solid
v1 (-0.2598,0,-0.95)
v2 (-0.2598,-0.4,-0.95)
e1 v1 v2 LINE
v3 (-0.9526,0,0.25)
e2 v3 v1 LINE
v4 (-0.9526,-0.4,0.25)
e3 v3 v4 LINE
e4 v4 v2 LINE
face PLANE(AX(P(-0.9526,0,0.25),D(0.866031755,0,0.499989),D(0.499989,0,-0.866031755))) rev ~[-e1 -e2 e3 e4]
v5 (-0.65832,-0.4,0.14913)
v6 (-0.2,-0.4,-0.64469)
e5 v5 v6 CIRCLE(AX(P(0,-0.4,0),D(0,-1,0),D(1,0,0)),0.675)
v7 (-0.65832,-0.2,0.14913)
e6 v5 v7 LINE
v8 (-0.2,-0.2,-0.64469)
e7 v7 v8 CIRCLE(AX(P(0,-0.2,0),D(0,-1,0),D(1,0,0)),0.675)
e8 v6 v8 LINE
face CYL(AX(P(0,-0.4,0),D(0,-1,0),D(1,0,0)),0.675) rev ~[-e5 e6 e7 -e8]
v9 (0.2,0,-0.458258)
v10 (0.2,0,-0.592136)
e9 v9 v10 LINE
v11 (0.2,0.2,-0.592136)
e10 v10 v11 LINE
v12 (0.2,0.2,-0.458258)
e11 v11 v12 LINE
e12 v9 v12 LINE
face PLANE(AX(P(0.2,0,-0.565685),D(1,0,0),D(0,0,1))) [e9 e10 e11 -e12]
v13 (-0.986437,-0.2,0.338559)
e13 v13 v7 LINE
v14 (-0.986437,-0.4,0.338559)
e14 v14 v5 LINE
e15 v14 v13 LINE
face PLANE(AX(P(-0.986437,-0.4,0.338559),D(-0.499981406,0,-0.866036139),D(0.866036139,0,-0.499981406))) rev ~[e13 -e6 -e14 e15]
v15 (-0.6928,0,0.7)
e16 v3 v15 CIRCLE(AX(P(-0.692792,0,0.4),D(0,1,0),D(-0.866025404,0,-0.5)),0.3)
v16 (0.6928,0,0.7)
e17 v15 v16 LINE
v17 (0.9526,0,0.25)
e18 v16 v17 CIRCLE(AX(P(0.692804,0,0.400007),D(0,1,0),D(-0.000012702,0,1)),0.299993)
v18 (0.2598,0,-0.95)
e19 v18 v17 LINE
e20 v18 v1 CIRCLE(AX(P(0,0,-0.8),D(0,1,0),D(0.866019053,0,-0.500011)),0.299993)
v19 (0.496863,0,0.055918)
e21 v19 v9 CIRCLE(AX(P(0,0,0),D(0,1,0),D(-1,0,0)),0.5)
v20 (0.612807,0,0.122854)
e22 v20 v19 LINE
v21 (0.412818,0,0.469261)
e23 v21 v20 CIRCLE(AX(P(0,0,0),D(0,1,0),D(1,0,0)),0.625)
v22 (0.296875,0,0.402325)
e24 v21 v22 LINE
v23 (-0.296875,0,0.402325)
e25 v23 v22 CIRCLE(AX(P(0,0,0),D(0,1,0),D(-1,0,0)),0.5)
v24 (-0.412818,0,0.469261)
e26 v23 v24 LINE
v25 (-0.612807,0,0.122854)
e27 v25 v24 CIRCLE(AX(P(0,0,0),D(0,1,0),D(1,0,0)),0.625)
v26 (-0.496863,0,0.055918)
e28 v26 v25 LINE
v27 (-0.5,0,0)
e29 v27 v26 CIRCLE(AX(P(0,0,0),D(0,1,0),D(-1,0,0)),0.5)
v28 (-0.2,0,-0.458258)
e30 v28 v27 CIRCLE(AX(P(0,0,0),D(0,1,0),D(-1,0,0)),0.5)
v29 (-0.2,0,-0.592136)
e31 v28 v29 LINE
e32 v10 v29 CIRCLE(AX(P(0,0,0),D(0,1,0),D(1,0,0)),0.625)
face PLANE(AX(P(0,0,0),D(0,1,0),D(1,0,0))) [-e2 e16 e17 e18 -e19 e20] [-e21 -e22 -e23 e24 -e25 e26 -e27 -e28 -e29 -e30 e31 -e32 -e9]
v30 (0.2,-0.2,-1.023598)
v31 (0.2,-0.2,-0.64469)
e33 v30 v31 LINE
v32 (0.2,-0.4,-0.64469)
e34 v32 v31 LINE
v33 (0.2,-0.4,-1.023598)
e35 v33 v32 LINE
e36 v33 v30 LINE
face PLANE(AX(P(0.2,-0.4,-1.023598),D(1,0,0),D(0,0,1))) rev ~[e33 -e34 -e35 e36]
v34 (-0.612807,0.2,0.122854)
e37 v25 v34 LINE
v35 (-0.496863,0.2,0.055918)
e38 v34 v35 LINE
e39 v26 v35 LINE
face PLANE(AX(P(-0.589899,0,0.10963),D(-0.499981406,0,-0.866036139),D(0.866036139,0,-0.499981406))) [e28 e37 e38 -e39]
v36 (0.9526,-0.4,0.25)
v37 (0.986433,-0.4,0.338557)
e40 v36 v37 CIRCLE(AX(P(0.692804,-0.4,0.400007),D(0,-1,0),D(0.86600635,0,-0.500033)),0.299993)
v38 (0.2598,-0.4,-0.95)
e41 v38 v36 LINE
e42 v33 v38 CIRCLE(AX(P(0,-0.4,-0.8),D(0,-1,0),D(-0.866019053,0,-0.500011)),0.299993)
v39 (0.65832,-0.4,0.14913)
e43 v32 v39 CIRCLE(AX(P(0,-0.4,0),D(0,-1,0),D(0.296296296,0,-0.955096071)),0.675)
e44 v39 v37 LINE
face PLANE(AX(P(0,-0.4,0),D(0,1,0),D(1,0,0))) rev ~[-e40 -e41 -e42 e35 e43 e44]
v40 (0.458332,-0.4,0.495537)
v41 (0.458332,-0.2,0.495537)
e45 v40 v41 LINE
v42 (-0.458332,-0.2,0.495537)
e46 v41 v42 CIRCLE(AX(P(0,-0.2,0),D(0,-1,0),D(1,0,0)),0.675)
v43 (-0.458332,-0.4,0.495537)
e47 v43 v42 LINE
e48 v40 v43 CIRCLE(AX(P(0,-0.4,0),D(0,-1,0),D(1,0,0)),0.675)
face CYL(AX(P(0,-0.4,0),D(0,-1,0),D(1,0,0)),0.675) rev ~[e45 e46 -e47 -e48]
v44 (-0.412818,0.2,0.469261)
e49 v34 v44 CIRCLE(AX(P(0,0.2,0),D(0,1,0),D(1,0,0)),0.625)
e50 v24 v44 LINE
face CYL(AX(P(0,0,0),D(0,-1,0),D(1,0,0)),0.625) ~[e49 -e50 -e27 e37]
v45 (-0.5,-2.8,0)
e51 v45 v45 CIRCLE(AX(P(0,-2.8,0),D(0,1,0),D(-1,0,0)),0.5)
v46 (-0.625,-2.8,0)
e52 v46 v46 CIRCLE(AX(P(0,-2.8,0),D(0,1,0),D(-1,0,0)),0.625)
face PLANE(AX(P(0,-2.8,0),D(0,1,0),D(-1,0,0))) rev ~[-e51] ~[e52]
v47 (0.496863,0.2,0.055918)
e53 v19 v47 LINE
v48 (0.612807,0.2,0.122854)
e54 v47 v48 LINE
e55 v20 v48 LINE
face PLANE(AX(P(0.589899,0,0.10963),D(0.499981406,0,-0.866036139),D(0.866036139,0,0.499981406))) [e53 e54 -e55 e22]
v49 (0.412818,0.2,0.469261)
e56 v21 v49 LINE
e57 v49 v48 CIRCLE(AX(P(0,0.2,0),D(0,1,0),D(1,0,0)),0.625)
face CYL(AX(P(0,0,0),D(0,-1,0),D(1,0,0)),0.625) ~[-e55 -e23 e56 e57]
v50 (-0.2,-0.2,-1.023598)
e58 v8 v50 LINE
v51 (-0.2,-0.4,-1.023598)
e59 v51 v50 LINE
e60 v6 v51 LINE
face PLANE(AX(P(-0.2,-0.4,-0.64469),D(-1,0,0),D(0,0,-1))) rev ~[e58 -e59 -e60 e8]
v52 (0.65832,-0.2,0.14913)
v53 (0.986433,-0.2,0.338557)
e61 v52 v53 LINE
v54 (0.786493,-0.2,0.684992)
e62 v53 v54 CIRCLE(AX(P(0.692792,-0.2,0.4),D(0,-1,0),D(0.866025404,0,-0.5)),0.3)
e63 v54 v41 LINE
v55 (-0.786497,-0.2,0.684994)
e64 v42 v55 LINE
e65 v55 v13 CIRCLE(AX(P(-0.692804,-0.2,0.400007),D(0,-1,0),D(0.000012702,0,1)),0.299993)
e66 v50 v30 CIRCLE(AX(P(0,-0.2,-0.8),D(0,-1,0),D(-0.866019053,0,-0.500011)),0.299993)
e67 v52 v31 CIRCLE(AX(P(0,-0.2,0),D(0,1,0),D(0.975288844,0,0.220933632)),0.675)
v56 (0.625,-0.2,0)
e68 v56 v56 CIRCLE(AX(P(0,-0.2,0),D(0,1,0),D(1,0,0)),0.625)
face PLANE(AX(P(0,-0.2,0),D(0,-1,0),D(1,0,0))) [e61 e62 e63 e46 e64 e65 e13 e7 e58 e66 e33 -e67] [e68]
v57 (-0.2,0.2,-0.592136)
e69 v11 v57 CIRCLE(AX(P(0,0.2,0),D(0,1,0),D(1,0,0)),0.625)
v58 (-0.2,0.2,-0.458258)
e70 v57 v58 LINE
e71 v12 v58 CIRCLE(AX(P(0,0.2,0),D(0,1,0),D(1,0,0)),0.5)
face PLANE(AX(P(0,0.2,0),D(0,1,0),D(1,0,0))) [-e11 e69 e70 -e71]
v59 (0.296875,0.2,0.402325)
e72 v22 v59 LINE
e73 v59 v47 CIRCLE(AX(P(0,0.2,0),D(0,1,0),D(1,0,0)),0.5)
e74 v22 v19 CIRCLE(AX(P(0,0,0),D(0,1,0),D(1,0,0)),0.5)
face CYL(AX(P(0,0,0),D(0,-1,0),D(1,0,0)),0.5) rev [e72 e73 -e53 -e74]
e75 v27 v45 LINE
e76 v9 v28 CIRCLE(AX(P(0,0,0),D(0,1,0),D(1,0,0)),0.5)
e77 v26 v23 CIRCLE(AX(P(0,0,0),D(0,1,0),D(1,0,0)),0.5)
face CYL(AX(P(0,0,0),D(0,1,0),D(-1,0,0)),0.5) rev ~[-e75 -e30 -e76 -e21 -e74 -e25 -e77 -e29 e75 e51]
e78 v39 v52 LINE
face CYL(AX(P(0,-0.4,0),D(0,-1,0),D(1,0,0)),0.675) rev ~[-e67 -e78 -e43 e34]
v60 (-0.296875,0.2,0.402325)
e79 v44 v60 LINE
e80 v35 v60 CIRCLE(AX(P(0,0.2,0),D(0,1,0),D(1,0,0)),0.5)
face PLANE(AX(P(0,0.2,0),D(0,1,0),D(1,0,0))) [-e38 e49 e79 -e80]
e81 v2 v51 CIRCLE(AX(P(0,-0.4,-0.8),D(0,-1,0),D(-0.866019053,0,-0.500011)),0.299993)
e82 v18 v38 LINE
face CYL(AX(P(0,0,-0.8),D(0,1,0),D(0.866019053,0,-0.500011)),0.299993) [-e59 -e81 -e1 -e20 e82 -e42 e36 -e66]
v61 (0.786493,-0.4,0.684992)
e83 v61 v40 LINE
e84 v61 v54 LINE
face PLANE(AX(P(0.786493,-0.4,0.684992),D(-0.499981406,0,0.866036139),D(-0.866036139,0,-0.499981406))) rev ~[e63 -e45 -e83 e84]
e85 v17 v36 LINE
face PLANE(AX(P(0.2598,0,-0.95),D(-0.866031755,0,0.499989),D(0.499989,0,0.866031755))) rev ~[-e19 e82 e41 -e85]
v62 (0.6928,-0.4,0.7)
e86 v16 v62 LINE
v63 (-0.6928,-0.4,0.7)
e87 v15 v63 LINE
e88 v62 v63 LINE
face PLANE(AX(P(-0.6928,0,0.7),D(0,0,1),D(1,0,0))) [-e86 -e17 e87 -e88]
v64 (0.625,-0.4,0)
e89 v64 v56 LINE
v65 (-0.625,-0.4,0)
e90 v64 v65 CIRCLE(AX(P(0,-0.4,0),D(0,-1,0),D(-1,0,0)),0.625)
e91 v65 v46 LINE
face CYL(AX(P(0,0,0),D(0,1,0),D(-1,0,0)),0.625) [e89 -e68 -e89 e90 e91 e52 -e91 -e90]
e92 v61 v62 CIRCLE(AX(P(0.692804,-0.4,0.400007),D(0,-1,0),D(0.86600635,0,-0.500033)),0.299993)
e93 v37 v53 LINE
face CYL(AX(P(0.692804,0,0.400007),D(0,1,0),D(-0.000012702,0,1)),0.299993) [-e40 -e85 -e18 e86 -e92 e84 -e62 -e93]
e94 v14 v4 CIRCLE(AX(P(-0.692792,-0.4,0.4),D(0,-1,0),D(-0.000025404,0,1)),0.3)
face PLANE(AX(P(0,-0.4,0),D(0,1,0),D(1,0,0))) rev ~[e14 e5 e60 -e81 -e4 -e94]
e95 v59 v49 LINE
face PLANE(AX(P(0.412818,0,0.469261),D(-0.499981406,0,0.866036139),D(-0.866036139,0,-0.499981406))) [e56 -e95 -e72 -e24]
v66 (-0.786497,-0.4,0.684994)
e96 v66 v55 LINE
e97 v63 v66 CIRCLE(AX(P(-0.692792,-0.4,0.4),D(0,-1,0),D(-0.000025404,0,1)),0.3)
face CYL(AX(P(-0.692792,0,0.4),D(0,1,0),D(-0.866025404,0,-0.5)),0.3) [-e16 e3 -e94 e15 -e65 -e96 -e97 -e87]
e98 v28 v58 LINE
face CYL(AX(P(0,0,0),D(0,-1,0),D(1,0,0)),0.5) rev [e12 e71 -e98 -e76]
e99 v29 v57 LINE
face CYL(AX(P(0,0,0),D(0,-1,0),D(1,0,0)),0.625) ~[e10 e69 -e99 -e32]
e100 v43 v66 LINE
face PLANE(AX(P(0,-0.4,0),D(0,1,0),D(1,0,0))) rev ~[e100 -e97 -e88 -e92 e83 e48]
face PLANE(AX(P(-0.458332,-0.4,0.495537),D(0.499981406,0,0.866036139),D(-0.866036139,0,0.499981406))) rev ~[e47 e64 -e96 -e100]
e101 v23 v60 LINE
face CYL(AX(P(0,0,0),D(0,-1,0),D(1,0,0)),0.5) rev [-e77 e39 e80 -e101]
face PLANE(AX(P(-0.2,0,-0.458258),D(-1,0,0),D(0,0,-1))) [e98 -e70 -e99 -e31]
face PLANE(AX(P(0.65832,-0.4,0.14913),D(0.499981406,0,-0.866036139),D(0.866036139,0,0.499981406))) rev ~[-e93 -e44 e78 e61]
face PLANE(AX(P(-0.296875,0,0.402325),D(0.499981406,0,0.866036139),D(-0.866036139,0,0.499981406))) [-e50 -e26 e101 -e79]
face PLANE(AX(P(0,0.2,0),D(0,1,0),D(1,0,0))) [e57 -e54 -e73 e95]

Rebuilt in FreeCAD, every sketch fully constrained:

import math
import FreeCAD as App
import Part
import Sketcher

V = App.Vector
Q = App.Units.Quantity

doc = App.newDocument("Part")
params = doc.addObject("Spreadsheet::Sheet", "Params")
for row, (alias, value) in enumerate([
    ("sketch1_diameter", "1 mm"),
    ("sketch1_diameter2", "1.25 mm"),
    ("pad1_length", "2.8 mm"),
    ("sketch2_radius", "0.3 mm"),
    ("sketch2_diameter", "1.25 mm"),
    ("pad2_length", "0.4 mm"),
    ("sketch3_radius", "0.3 mm"),
    ("sketch3_diameter", "1.25 mm"),
    ("pocket1_length", "0.2 mm"),
    ("sketch4_radius", "0.5 mm"),
    ("pad3_length", "0.2 mm"),
], start=1):
    params.set(f"A{row}", alias)
    params.set(f"B{row}", "=" + value)
    params.setAlias(f"B{row}", alias)

body = doc.addObject("PartDesign::Body", "Body")

sketch1 = body.newObject("Sketcher::SketchObject", "Sketch")
sketch1.AttachmentSupport = (doc.getObject("XZ_Plane"), [""])
sketch1.MapMode = "FlatFace"
sketch1.addGeometry(Part.Circle(V(0, 0, 0), V(0, 0, 1), 0.6), False)
sketch1.addGeometry(Part.Circle(V(0, 0, 0), V(0, 0, 1), 0.5), False)
sketch1.addConstraint(Sketcher.Constraint("Coincident", 0, 3, -1, 1))
sketch1.addConstraint(Sketcher.Constraint("Coincident", 1, 3, -1, 1))
sketch1.addConstraint(Sketcher.Constraint("Diameter", 1, Q("1 mm")))
sketch1.addConstraint(Sketcher.Constraint("Diameter", 0, Q("1.25 mm")))
sketch1.setExpression("Constraints[2]", "Params.sketch1_diameter")
sketch1.setExpression("Constraints[3]", "Params.sketch1_diameter2")
pad1 = body.newObject("PartDesign::Pad", "Pad")
pad1.Profile = sketch1
pad1.setExpression("Length", "Params.pad1_length")

sketch2 = body.newObject("Sketcher::SketchObject", "Sketch001")
sketch2.AttachmentSupport = (doc.getObject("XZ_Plane"), [""])
sketch2.MapMode = "FlatFace"
sketch2.addGeometry(Part.ArcOfCircle(Part.Circle(V(-0.69, 0.4, 0), V(0, 0, 1), 0.3), math.radians(90), math.radians(210)), False)
sketch2.addGeometry(Part.LineSegment(V(-0.69, 0.7, 0), V(0.69, 0.7, 0)), False)
sketch2.addGeometry(Part.ArcOfCircle(Part.Circle(V(0.69, 0.4, 0), V(0, 0, 1), 0.3), math.radians(-30), math.radians(90)), False)
sketch2.addGeometry(Part.LineSegment(V(0.95, 0.25, 0), V(0.26, -0.95, 0)), False)
sketch2.addGeometry(Part.ArcOfCircle(Part.Circle(V(0, -0.8, 0), V(0, 0, 1), 0.3), math.radians(-150), math.radians(-30)), False)
sketch2.addGeometry(Part.LineSegment(V(-0.26, -0.95, 0), V(-0.95, 0.25, 0)), False)
sketch2.addGeometry(Part.Circle(V(0, 0, 0), V(0, 0, 1), 0.62), False)
sketch2.addConstraint(Sketcher.Constraint("Tangent", 0, 1, 1, 1))
sketch2.addConstraint(Sketcher.Constraint("Tangent", 1, 2, 2, 2))
sketch2.addConstraint(Sketcher.Constraint("Tangent", 2, 1, 3, 1))
sketch2.addConstraint(Sketcher.Constraint("Tangent", 3, 2, 4, 2))
sketch2.addConstraint(Sketcher.Constraint("Tangent", 4, 1, 5, 1))
sketch2.addConstraint(Sketcher.Constraint("Tangent", 5, 2, 0, 2))
sketch2.addConstraint(Sketcher.Constraint("Horizontal", 1))
sketch2.addConstraint(Sketcher.Constraint("Coincident", 6, 3, -1, 1))
sketch2.addConstraint(Sketcher.Constraint("Equal", 0, 2))
sketch2.addConstraint(Sketcher.Constraint("Equal", 2, 4))
sketch2.addConstraint(Sketcher.Constraint("Symmetric", 3, 2, 4, 1, -2))
sketch2.addConstraint(Sketcher.Constraint("Radius", 0, Q("0.3 mm")))
sketch2.addConstraint(Sketcher.Constraint("Diameter", 6, Q("1.25 mm")))
sketch2.addConstraint(Sketcher.Constraint("Angle", 3, Q("-119.9993 deg")))
sketch2.addConstraint(Sketcher.Constraint("DistanceY", -1, 1, 0, 3, Q("0.4 mm")))
sketch2.addConstraint(Sketcher.Constraint("DistanceY", 4, 3, -1, 1, Q("0.8 mm")))
sketch2.setExpression("Constraints[11]", "Params.sketch2_radius")
sketch2.setExpression("Constraints[12]", "Params.sketch2_diameter")
pad2 = body.newObject("PartDesign::Pad", "Pad001")
pad2.Profile = sketch2
pad2.setExpression("Length", "Params.pad2_length")

sketch3 = body.newObject("Sketcher::SketchObject", "Sketch002")
sketch3.AttachmentSupport = (doc.getObject("XZ_Plane"), [""])
sketch3.MapMode = "FlatFace"
sketch3.AttachmentOffset = App.Placement(V(0, 0, 0.4), App.Rotation())
sketch3.addGeometry(Part.LineSegment(V(0.66, 0.15, 0), V(0.99, 0.34, 0)), False)
sketch3.addGeometry(Part.ArcOfCircle(Part.Circle(V(0.69, 0.4, 0), V(0, 0, 1), 0.3), math.radians(-12), math.radians(72)), False)
sketch3.addGeometry(Part.LineSegment(V(0.79, 0.68, 0), V(0.46, 0.5, 0)), False)
sketch3.addGeometry(Part.ArcOfCircle(Part.Circle(V(0, 0, 0), V(0, 0, 1), 0.68), math.radians(47), math.radians(133)), False)
sketch3.addGeometry(Part.LineSegment(V(-0.46, 0.5, 0), V(-0.79, 0.68, 0)), False)
sketch3.addGeometry(Part.ArcOfCircle(Part.Circle(V(-0.69, 0.4, 0), V(0, 0, 1), 0.3), math.radians(108), math.radians(192)), False)
sketch3.addGeometry(Part.LineSegment(V(-0.99, 0.34, 0), V(-0.66, 0.15, 0)), False)
sketch3.addGeometry(Part.ArcOfCircle(Part.Circle(V(0, 0, 0), V(0, 0, 1), 0.68), math.radians(167), math.radians(253)), False)
sketch3.addGeometry(Part.LineSegment(V(-0.2, -0.64, 0), V(-0.2, -1.02, 0)), False)
sketch3.addGeometry(Part.ArcOfCircle(Part.Circle(V(0, -0.8, 0), V(0, 0, 1), 0.3), math.radians(-132), math.radians(-48)), False)
sketch3.addGeometry(Part.LineSegment(V(0.2, -1.02, 0), V(0.2, -0.64, 0)), False)
sketch3.addGeometry(Part.ArcOfCircle(Part.Circle(V(0, 0, 0), V(0, 0, 1), 0.68), math.radians(-73), math.radians(13)), False)
sketch3.addGeometry(Part.Circle(V(0, 0, 0), V(0, 0, 1), 0.62), False)
sketch3.addConstraint(Sketcher.Constraint("Coincident", 0, 2, 1, 1))
sketch3.addConstraint(Sketcher.Constraint("Coincident", 1, 2, 2, 1))
sketch3.addConstraint(Sketcher.Constraint("Coincident", 2, 2, 3, 1))
sketch3.addConstraint(Sketcher.Constraint("Coincident", 3, 2, 4, 1))
sketch3.addConstraint(Sketcher.Constraint("Coincident", 4, 2, 5, 1))
sketch3.addConstraint(Sketcher.Constraint("Coincident", 5, 2, 6, 1))
sketch3.addConstraint(Sketcher.Constraint("Coincident", 6, 2, 7, 1))
sketch3.addConstraint(Sketcher.Constraint("Coincident", 7, 2, 8, 1))
sketch3.addConstraint(Sketcher.Constraint("Coincident", 8, 2, 9, 1))
sketch3.addConstraint(Sketcher.Constraint("Coincident", 9, 2, 10, 1))
sketch3.addConstraint(Sketcher.Constraint("Coincident", 10, 2, 11, 1))
sketch3.addConstraint(Sketcher.Constraint("Coincident", 11, 2, 0, 1))
sketch3.addConstraint(Sketcher.Constraint("Vertical", 8))
sketch3.addConstraint(Sketcher.Constraint("Vertical", 10))
sketch3.addConstraint(Sketcher.Constraint("Coincident", 3, 3, -1, 1))
sketch3.addConstraint(Sketcher.Constraint("Coincident", 7, 3, -1, 1))
sketch3.addConstraint(Sketcher.Constraint("Coincident", 11, 3, -1, 1))
sketch3.addConstraint(Sketcher.Constraint("Coincident", 12, 3, -1, 1))
sketch3.addConstraint(Sketcher.Constraint("Equal", 1, 5))
sketch3.addConstraint(Sketcher.Constraint("Equal", 3, 7))
sketch3.addConstraint(Sketcher.Constraint("Equal", 5, 9))
sketch3.addConstraint(Sketcher.Constraint("Equal", 7, 11))
sketch3.addConstraint(Sketcher.Constraint("Symmetric", 1, 3, 5, 3, -2))
sketch3.addConstraint(Sketcher.Constraint("Symmetric", 8, 2, 9, 2, -2))
sketch3.addConstraint(Sketcher.Constraint("Parallel", 0, 2))
sketch3.addConstraint(Sketcher.Constraint("Parallel", 4, 6))
sketch3.addConstraint(Sketcher.Constraint("Horizontal", 2, 2, 3, 2))
sketch3.addConstraint(Sketcher.Constraint("Horizontal", 1, 2, 4, 2))
sketch3.addConstraint(Sketcher.Constraint("Horizontal", 0, 2, 5, 2))
sketch3.addConstraint(Sketcher.Constraint("Equal", 0, 2))
sketch3.addConstraint(Sketcher.Constraint("Radius", 3, Q("0.675 mm")))
sketch3.addConstraint(Sketcher.Constraint("DistanceY", -1, 1, 1, 3, Q("0.4 mm")))
sketch3.addConstraint(Sketcher.Constraint("Radius", 1, Q("0.3 mm")))
sketch3.addConstraint(Sketcher.Constraint("DistanceX", 8, 2, 9, 2, Q("0.4 mm")))
sketch3.addConstraint(Sketcher.Constraint("Diameter", 12, Q("1.25 mm")))
sketch3.addConstraint(Sketcher.Constraint("DistanceY", 9, 3, -1, 1, Q("0.8 mm")))
sketch3.addConstraint(Sketcher.Constraint("DistanceX", 1, 2, 0, 2, Q("0.2 mm")))
sketch3.addConstraint(Sketcher.Constraint("Distance", 2, Q("0.379 mm")))
sketch3.addConstraint(Sketcher.Constraint("DistanceY", -1, 1, 1, 2, Q("0.685 mm")))
sketch3.setExpression("Constraints[32]", "Params.sketch3_radius")
sketch3.setExpression("Constraints[34]", "Params.sketch3_diameter")
pocket1 = body.newObject("PartDesign::Pocket", "Pocket")
pocket1.Profile = sketch3
pocket1.setExpression("Length", "Params.pocket1_length")

sketch4 = body.newObject("Sketcher::SketchObject", "Sketch003")
sketch4.AttachmentSupport = (doc.getObject("XZ_Plane"), [""])
sketch4.MapMode = "FlatFace"
sketch4.addGeometry(Part.LineSegment(V(0.2, -0.46, 0), V(0.2, -0.59, 0)), False)
sketch4.addGeometry(Part.ArcOfCircle(Part.Circle(V(0, 0, 0), V(0, 0, 1), 0.62), math.radians(-109), math.radians(-71)), False)
sketch4.addGeometry(Part.LineSegment(V(-0.2, -0.59, 0), V(-0.2, -0.46, 0)), False)
sketch4.addGeometry(Part.ArcOfCircle(Part.Circle(V(0, 0, 0), V(0, 0, 1), 0.5), math.radians(-114), math.radians(-66)), False)
sketch4.addGeometry(Part.LineSegment(V(0.61, 0.12, 0), V(0.5, 0.06, 0)), False)
sketch4.addGeometry(Part.ArcOfCircle(Part.Circle(V(0, 0, 0), V(0, 0, 1), 0.5), math.radians(6), math.radians(54)), False)
sketch4.addGeometry(Part.LineSegment(V(0.3, 0.4, 0), V(0.41, 0.47, 0)), False)
sketch4.addGeometry(Part.ArcOfCircle(Part.Circle(V(0, 0, 0), V(0, 0, 1), 0.62), math.radians(11), math.radians(49)), False)
sketch4.addGeometry(Part.LineSegment(V(-0.5, 0.06, 0), V(-0.61, 0.12, 0)), False)
sketch4.addGeometry(Part.ArcOfCircle(Part.Circle(V(0, 0, 0), V(0, 0, 1), 0.62), math.radians(131), math.radians(169)), False)
sketch4.addGeometry(Part.LineSegment(V(-0.41, 0.47, 0), V(-0.3, 0.4, 0)), False)
sketch4.addGeometry(Part.ArcOfCircle(Part.Circle(V(0, 0, 0), V(0, 0, 1), 0.5), math.radians(126), math.radians(174)), False)
sketch4.addConstraint(Sketcher.Constraint("Coincident", 0, 2, 1, 2))
sketch4.addConstraint(Sketcher.Constraint("Coincident", 1, 1, 2, 1))
sketch4.addConstraint(Sketcher.Constraint("Coincident", 2, 2, 3, 1))
sketch4.addConstraint(Sketcher.Constraint("Coincident", 3, 2, 0, 1))
sketch4.addConstraint(Sketcher.Constraint("Coincident", 4, 2, 5, 1))
sketch4.addConstraint(Sketcher.Constraint("Coincident", 5, 2, 6, 1))
sketch4.addConstraint(Sketcher.Constraint("Coincident", 6, 2, 7, 2))
sketch4.addConstraint(Sketcher.Constraint("Coincident", 7, 1, 4, 1))
sketch4.addConstraint(Sketcher.Constraint("Coincident", 8, 2, 9, 2))
sketch4.addConstraint(Sketcher.Constraint("Coincident", 9, 1, 10, 1))
sketch4.addConstraint(Sketcher.Constraint("Coincident", 10, 2, 11, 1))
sketch4.addConstraint(Sketcher.Constraint("Coincident", 11, 2, 8, 1))
sketch4.addConstraint(Sketcher.Constraint("Vertical", 0))
sketch4.addConstraint(Sketcher.Constraint("Vertical", 2))
sketch4.addConstraint(Sketcher.Constraint("Coincident", 1, 3, -1, 1))
sketch4.addConstraint(Sketcher.Constraint("Coincident", 3, 3, -1, 1))
sketch4.addConstraint(Sketcher.Constraint("Coincident", 5, 3, -1, 1))
sketch4.addConstraint(Sketcher.Constraint("Coincident", 7, 3, -1, 1))
sketch4.addConstraint(Sketcher.Constraint("Coincident", 9, 3, -1, 1))
sketch4.addConstraint(Sketcher.Constraint("Coincident", 11, 3, -1, 1))
sketch4.addConstraint(Sketcher.Constraint("Equal", 3, 5))
sketch4.addConstraint(Sketcher.Constraint("Equal", 1, 7))
sketch4.addConstraint(Sketcher.Constraint("Equal", 7, 9))
sketch4.addConstraint(Sketcher.Constraint("Equal", 5, 11))
sketch4.addConstraint(Sketcher.Constraint("Parallel", 4, 6))
sketch4.addConstraint(Sketcher.Constraint("Parallel", 8, 10))
sketch4.addConstraint(Sketcher.Constraint("Horizontal", 0, 2, 1, 1))
sketch4.addConstraint(Sketcher.Constraint("Horizontal", 7, 1, 8, 2))
sketch4.addConstraint(Sketcher.Constraint("Horizontal", 6, 2, 9, 1))
sketch4.addConstraint(Sketcher.Constraint("Horizontal", 5, 2, 10, 2))
sketch4.addConstraint(Sketcher.Constraint("Equal", 4, 6))
sketch4.addConstraint(Sketcher.Constraint("Radius", 3, Q("0.5 mm")))
sketch4.addConstraint(Sketcher.Constraint("Radius", 1, Q("0.625 mm")))
sketch4.addConstraint(Sketcher.Constraint("DistanceX", -1, 1, 0, 2, Q("0.2 mm")))
sketch4.addConstraint(Sketcher.Constraint("DistanceX", 5, 2, 4, 2, Q("0.2 mm")))
sketch4.addConstraint(Sketcher.Constraint("DistanceY", -1, 1, 4, 2, Q("0.056 mm")))
sketch4.setExpression("Constraints[31]", "Params.sketch4_radius")
pad3 = body.newObject("PartDesign::Pad", "Pad002")
pad3.Profile = sketch4
pad3.setExpression("Length", "Params.pad3_length")
pad3.Reversed = True

doc.recompute()
